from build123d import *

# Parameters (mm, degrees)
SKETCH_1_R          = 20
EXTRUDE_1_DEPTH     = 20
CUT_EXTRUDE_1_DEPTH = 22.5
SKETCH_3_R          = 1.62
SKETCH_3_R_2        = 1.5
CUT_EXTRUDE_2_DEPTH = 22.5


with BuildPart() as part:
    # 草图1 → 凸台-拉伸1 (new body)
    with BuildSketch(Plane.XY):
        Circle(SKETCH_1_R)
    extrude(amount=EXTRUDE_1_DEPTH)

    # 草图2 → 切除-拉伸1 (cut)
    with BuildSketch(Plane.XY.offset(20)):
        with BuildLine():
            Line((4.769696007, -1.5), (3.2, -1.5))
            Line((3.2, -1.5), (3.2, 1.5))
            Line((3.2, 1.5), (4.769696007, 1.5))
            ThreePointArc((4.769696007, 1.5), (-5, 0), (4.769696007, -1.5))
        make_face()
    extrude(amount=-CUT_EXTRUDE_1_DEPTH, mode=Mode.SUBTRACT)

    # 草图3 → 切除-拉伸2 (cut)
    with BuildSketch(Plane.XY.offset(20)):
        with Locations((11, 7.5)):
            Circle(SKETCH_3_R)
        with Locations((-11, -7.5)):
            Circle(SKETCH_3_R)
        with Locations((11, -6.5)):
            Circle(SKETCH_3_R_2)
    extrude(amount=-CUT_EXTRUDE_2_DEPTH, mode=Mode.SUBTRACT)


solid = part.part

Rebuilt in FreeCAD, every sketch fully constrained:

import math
import FreeCAD as App
import Part
import Sketcher
from FreeCAD import Vector

doc = App.newDocument("Part")
body = doc.addObject("PartDesign::Body", "Body")

# Sketch on XY plane
sketch1 = body.newObject("Sketcher::SketchObject", "Sketch")
sketch1.AttachmentSupport = (doc.getObject("XY_Plane"), [""])
sketch1.MapMode = "FlatFace"
sketch1.addGeometry(Part.Circle(Vector(0, 0, 0), Vector(0, 0, 1), 20), False)
sketch1.addConstraint([
    Sketcher.Constraint("Coincident", 0, 3, -1, 1),
    Sketcher.Constraint("Diameter", 0, 40.0),
])
pad1 = body.newObject("PartDesign::Pad", "Pad")
pad1.Profile = sketch1
pad1.Length = 20

# Sketch on XY plane
sketch2 = body.newObject("Sketcher::SketchObject", "Sketch001")
sketch2.AttachmentSupport = (doc.getObject("XY_Plane"), [""])
sketch2.MapMode = "FlatFace"
sketch2.AttachmentOffset = App.Placement(Vector(0, 0, 20), App.Rotation())
sketch2.addGeometry([
    Part.LineSegment(Vector(4.8, -1.5, 0), Vector(3.2, -1.5, 0)),
    Part.LineSegment(Vector(3.2, -1.5, 0), Vector(3.2, 1.5, 0)),
    Part.LineSegment(Vector(3.2, 1.5, 0), Vector(4.8, 1.5, 0)),
    Part.ArcOfCircle(Part.Circle(Vector(0, 0, 0), Vector(0, 0, 1), 5), math.radians(17), math.radians(343)),
], False)
sketch2.addConstraint([
    Sketcher.Constraint("Coincident", 0, 2, 1, 1),
    Sketcher.Constraint("Coincident", 1, 2, 2, 1),
    Sketcher.Constraint("Coincident", 2, 2, 3, 1),
    Sketcher.Constraint("Coincident", 3, 2, 0, 1),
    Sketcher.Constraint("Horizontal", 0),
    Sketcher.Constraint("Vertical", 1),
    Sketcher.Constraint("Horizontal", 2),
    Sketcher.Constraint("Coincident", 3, 3, -1, 1),
    Sketcher.Constraint("Vertical", 2, 2, 3, 2),
    Sketcher.Constraint("Radius", 3, 5.0),
    Sketcher.Constraint("DistanceY", 1, 1, 1, 2, 3.0),
    Sketcher.Constraint("DistanceX", -1, 1, 0, 2, 3.2),
])
pocket1 = body.newObject("PartDesign::Pocket", "Pocket")
pocket1.Profile = sketch2
pocket1.Length = 22.5

# Sketch on XY plane
sketch3 = body.newObject("Sketcher::SketchObject", "Sketch002")
sketch3.AttachmentSupport = (doc.getObject("XY_Plane"), [""])
sketch3.MapMode = "FlatFace"
sketch3.AttachmentOffset = App.Placement(Vector(0, 0, 20), App.Rotation())
sketch3.addGeometry([
    Part.Circle(Vector(11, 7.5, 0), Vector(0, 0, 1), 1.6),
    Part.Circle(Vector(-11, -7.5, 0), Vector(0, 0, 1), 1.6),
    Part.Circle(Vector(11, -6.5, 0), Vector(0, 0, 1), 1.5),
], False)
sketch3.addConstraint([
    Sketcher.Constraint("Equal", 0, 1),
    Sketcher.Constraint("Symmetric", 0, 3, 1, 3, -1, 1),
    Sketcher.Constraint("Vertical", 0, 3, 2, 3),
    Sketcher.Constraint("Diameter", 2, 3.0),
    Sketcher.Constraint("Diameter", 0, 3.24),
    Sketcher.Constraint("DistanceX", -1, 1, 0, 3, 11.0),
    Sketcher.Constraint("DistanceY", 1, 3, 0, 3, 15.0),
    Sketcher.Constraint("DistanceY", 2, 3, 0, 3, 14.0),
])
pocket2 = body.newObject("PartDesign::Pocket", "Pocket001")
pocket2.Profile = sketch3
pocket2.Length = 22.5

doc.recompute()
